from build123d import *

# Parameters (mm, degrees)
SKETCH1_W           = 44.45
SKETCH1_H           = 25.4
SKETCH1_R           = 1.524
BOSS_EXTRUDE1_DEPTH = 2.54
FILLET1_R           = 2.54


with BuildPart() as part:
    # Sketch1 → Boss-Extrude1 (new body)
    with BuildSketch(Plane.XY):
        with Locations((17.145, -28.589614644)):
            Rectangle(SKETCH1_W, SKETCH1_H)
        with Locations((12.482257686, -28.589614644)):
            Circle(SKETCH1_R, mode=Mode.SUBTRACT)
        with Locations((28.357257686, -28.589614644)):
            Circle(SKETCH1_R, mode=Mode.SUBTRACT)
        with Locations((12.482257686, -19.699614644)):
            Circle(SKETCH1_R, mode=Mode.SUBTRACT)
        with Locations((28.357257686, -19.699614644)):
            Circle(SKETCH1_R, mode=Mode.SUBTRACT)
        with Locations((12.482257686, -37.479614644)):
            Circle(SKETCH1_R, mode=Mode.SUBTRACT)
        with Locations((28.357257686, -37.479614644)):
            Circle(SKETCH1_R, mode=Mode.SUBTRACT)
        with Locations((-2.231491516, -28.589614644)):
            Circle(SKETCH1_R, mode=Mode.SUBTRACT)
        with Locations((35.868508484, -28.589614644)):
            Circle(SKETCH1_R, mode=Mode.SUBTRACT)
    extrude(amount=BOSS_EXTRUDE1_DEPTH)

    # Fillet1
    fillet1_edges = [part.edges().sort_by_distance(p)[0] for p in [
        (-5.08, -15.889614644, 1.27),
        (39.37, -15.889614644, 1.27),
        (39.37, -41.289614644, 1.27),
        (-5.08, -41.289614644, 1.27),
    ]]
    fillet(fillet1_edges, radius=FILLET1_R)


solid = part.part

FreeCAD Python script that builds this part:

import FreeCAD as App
import Part
import Sketcher
from FreeCAD import Vector
Q = App.Units.Quantity


def edges_at(feature, points):
    """Names of the edges that pass closest to the given points."""
    edges = feature.Shape.Edges
    near = lambda p: min(range(len(edges)), key=lambda i: edges[i].distToShape(Part.Vertex(*p))[0])
    return sorted({f"Edge{near(p) + 1}" for p in points})


def add_polygon(sketch, points):
    """Adds a closed chain of lines whose ends are joined by coincident constraints."""
    first, n = sketch.GeometryCount, len(points)
    for a, b in zip(points, points[1:] + points[:1]):
        sketch.addGeometry(Part.LineSegment(App.Vector(*a, 0), App.Vector(*b, 0)), False)
    for i in range(n):
        sketch.addConstraint(Sketcher.Constraint("Coincident", first + i, 2, first + (i + 1) % n, 1))

doc = App.newDocument("Part")
body = doc.addObject("PartDesign::Body", "Body")

sketch1 = body.newObject("Sketcher::SketchObject", "Sketch")
sketch1.AttachmentSupport = (doc.getObject("XY_Plane"), [""])
sketch1.MapMode = "FlatFace"
add_polygon(sketch1, [(-5.1, -15.9), (-5.1, -41.3), (39.4, -41.3), (39.4, -15.9)])
sketch1.addGeometry(Part.Circle(Vector(12.5, -37.5, 0), Vector(0, 0, 1), 1.5), False)
sketch1.addGeometry(Part.Circle(Vector(28.4, -37.5, 0), Vector(0, 0, 1), 1.5), False)
sketch1.addGeometry(Part.Circle(Vector(-2.2, -28.6, 0), Vector(0, 0, 1), 1.5), False)
sketch1.addGeometry(Part.Circle(Vector(12.5, -28.6, 0), Vector(0, 0, 1), 1.5), False)
sketch1.addGeometry(Part.Circle(Vector(12.5, -19.7, 0), Vector(0, 0, 1), 1.5), False)
sketch1.addGeometry(Part.Circle(Vector(28.4, -28.6, 0), Vector(0, 0, 1), 1.5), False)
sketch1.addGeometry(Part.Circle(Vector(35.9, -28.6, 0), Vector(0, 0, 1), 1.5), False)
sketch1.addGeometry(Part.Circle(Vector(28.4, -19.7, 0), Vector(0, 0, 1), 1.5), False)
sketch1.addConstraint([
    Sketcher.Constraint("Vertical", 0),
    Sketcher.Constraint("Horizontal", 1),
    Sketcher.Constraint("Vertical", 2),
    Sketcher.Constraint("Horizontal", 3),
    Sketcher.Constraint("Equal", 4, 5),
    Sketcher.Constraint("Equal", 5, 6),
    Sketcher.Constraint("Equal", 6, 7),
    Sketcher.Constraint("Equal", 7, 8),
    Sketcher.Constraint("Equal", 8, 9),
    Sketcher.Constraint("Equal", 9, 10),
    Sketcher.Constraint("Equal", 10, 11),
    Sketcher.Constraint("Horizontal", 4, 3, 5, 3),
    Sketcher.Constraint("Horizontal", 6, 3, 7, 3),
    Sketcher.Constraint("Horizontal", 7, 3, 9, 3),
    Sketcher.Constraint("Horizontal", 9, 3, 10, 3),
    Sketcher.Constraint("Horizontal", 8, 3, 11, 3),
    Sketcher.Constraint("Vertical", 4, 3, 7, 3),
    Sketcher.Constraint("Vertical", 7, 3, 8, 3),
    Sketcher.Constraint("Vertical", 5, 3, 9, 3),
    Sketcher.Constraint("Vertical", 9, 3, 11, 3),
    Sketcher.Constraint("Diameter", 4, Q("0.12 in")),
    Sketcher.Constraint("DistanceY", 0, 2, 0, 1, Q("1 in")),
    Sketcher.Constraint("DistanceX", 1, 1, 1, 2, Q("1.75 in")),
    Sketcher.Constraint("DistanceX", 0, 2, -1, 1, Q("0.2 in")),
    Sketcher.Constraint("DistanceY", 4, 3, 8, 3, Q("0.7 in")),
    Sketcher.Constraint("DistanceY", 0, 2, 6, 3, Q("0.5 in")),
    Sketcher.Constraint("DistanceY", 4, 3, 6, 3, Q("0.35 in")),
    Sketcher.Constraint("DistanceX", 4, 3, 5, 3, Q("0.625 in")),
    Sketcher.Constraint("DistanceX", 6, 3, -1, 1, Q("2.231492 mm")),
    Sketcher.Constraint("DistanceX", -1, 1, 10, 3, Q("35.868508 mm")),
    Sketcher.Constraint("DistanceX", 6, 3, 4, 3, Q("14.713749 mm")),
    Sketcher.Constraint("DistanceY", 4, 3, -1, 1, Q("37.479615 mm")),
])
pad1 = body.newObject("PartDesign::Pad", "Pad")
pad1.Profile = sketch1
pad1.Length = Q("0.1 in")
doc.recompute()

fillet = body.newObject("PartDesign::Fillet", "Fillet")
fillet.Base = (pad1, edges_at(pad1, [
    (-5.08, -15.89, 1.27),
    (39.37, -15.89, 1.27),
    (39.37, -41.29, 1.27),
    (-5.08, -41.29, 1.27),
]))
fillet.Radius = Q("0.1 in")

doc.recompute()
